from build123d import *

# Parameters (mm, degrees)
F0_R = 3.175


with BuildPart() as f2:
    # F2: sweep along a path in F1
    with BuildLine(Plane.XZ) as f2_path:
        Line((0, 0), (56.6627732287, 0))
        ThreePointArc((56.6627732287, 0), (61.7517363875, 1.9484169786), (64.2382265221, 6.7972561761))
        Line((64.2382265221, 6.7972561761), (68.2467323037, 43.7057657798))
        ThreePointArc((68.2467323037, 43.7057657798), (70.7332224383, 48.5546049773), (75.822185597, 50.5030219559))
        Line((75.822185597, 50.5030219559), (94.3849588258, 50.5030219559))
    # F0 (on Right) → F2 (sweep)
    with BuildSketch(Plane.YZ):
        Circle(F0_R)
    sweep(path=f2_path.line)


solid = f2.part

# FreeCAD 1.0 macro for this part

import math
import FreeCAD as App
import Part
import Sketcher
Q = App.Units.Quantity

doc = App.newDocument("Part")
body = doc.addObject("PartDesign::Body", "Body")

sketch1 = body.newObject("Sketcher::SketchObject", "Sketch")
sketch1.AttachmentSupport = (doc.getObject("YZ_Plane"), [""])
sketch1.MapMode = "FlatFace"
sketch1.addGeometry(Part.Circle(App.Vector(0, 0, 0), App.Vector(0, 0, 1), 3.2), False)
sketch1.addConstraint([
    Sketcher.Constraint("Coincident", 0, 3, -1, 1),
    Sketcher.Constraint("Diameter", 0, Q("0.25 in")),
])

sketch2 = body.newObject("Sketcher::SketchObject", "Sketch001")
sketch2.AttachmentSupport = (doc.getObject("XZ_Plane"), [""])
sketch2.MapMode = "FlatFace"
sketch2.addGeometry([
    Part.LineSegment(App.Vector(0, 0, 0), App.Vector(57, 0, 0)),
    Part.ArcOfCircle(Part.Circle(App.Vector(57, 8, 0), App.Vector(0, 0, 1), 8), math.radians(-90), math.radians(-6)),
    Part.LineSegment(App.Vector(64, 7, 0), App.Vector(68, 44, 0)),
    Part.ArcOfCircle(Part.Circle(App.Vector(76, 43, 0), App.Vector(0, 0, 1), 8), math.radians(90), math.radians(174)),
    Part.LineSegment(App.Vector(76, 51, 0), App.Vector(94, 51, 0)),
], False)
sketch2.addConstraint([
    Sketcher.Constraint("Tangent", 0, 2, 1, 1),
    Sketcher.Constraint("Tangent", 1, 2, 2, 1),
    Sketcher.Constraint("Tangent", 2, 2, 3, 2),
    Sketcher.Constraint("Tangent", 3, 1, 4, 1),
    Sketcher.Constraint("Horizontal", 0),
    Sketcher.Constraint("Horizontal", 4),
    Sketcher.Constraint("Coincident", 0, 1, -1, 1),
    Sketcher.Constraint("Equal", 1, 3),
    Sketcher.Constraint("Radius", 1, Q("0.3 in")),
    Sketcher.Constraint("DistanceX", 0, 1, 0, 2, Q("56.662773 mm")),
    Sketcher.Constraint("DistanceX", 4, 1, 4, 2, Q("18.562773 mm")),
    Sketcher.Constraint("DistanceY", -1, 1, 3, 3, Q("42.883022 mm")),
    Sketcher.Constraint("DistanceX", -1, 1, 4, 2, Q("94.384959 mm")),
])
doc.recompute()

additivepipe = body.newObject("PartDesign::AdditivePipe", "AdditivePipe")
additivepipe.Profile = sketch1
additivepipe.Spine = (sketch2, ["Edge1", "Edge2", "Edge3", "Edge4", "Edge5"])

doc.recompute()
